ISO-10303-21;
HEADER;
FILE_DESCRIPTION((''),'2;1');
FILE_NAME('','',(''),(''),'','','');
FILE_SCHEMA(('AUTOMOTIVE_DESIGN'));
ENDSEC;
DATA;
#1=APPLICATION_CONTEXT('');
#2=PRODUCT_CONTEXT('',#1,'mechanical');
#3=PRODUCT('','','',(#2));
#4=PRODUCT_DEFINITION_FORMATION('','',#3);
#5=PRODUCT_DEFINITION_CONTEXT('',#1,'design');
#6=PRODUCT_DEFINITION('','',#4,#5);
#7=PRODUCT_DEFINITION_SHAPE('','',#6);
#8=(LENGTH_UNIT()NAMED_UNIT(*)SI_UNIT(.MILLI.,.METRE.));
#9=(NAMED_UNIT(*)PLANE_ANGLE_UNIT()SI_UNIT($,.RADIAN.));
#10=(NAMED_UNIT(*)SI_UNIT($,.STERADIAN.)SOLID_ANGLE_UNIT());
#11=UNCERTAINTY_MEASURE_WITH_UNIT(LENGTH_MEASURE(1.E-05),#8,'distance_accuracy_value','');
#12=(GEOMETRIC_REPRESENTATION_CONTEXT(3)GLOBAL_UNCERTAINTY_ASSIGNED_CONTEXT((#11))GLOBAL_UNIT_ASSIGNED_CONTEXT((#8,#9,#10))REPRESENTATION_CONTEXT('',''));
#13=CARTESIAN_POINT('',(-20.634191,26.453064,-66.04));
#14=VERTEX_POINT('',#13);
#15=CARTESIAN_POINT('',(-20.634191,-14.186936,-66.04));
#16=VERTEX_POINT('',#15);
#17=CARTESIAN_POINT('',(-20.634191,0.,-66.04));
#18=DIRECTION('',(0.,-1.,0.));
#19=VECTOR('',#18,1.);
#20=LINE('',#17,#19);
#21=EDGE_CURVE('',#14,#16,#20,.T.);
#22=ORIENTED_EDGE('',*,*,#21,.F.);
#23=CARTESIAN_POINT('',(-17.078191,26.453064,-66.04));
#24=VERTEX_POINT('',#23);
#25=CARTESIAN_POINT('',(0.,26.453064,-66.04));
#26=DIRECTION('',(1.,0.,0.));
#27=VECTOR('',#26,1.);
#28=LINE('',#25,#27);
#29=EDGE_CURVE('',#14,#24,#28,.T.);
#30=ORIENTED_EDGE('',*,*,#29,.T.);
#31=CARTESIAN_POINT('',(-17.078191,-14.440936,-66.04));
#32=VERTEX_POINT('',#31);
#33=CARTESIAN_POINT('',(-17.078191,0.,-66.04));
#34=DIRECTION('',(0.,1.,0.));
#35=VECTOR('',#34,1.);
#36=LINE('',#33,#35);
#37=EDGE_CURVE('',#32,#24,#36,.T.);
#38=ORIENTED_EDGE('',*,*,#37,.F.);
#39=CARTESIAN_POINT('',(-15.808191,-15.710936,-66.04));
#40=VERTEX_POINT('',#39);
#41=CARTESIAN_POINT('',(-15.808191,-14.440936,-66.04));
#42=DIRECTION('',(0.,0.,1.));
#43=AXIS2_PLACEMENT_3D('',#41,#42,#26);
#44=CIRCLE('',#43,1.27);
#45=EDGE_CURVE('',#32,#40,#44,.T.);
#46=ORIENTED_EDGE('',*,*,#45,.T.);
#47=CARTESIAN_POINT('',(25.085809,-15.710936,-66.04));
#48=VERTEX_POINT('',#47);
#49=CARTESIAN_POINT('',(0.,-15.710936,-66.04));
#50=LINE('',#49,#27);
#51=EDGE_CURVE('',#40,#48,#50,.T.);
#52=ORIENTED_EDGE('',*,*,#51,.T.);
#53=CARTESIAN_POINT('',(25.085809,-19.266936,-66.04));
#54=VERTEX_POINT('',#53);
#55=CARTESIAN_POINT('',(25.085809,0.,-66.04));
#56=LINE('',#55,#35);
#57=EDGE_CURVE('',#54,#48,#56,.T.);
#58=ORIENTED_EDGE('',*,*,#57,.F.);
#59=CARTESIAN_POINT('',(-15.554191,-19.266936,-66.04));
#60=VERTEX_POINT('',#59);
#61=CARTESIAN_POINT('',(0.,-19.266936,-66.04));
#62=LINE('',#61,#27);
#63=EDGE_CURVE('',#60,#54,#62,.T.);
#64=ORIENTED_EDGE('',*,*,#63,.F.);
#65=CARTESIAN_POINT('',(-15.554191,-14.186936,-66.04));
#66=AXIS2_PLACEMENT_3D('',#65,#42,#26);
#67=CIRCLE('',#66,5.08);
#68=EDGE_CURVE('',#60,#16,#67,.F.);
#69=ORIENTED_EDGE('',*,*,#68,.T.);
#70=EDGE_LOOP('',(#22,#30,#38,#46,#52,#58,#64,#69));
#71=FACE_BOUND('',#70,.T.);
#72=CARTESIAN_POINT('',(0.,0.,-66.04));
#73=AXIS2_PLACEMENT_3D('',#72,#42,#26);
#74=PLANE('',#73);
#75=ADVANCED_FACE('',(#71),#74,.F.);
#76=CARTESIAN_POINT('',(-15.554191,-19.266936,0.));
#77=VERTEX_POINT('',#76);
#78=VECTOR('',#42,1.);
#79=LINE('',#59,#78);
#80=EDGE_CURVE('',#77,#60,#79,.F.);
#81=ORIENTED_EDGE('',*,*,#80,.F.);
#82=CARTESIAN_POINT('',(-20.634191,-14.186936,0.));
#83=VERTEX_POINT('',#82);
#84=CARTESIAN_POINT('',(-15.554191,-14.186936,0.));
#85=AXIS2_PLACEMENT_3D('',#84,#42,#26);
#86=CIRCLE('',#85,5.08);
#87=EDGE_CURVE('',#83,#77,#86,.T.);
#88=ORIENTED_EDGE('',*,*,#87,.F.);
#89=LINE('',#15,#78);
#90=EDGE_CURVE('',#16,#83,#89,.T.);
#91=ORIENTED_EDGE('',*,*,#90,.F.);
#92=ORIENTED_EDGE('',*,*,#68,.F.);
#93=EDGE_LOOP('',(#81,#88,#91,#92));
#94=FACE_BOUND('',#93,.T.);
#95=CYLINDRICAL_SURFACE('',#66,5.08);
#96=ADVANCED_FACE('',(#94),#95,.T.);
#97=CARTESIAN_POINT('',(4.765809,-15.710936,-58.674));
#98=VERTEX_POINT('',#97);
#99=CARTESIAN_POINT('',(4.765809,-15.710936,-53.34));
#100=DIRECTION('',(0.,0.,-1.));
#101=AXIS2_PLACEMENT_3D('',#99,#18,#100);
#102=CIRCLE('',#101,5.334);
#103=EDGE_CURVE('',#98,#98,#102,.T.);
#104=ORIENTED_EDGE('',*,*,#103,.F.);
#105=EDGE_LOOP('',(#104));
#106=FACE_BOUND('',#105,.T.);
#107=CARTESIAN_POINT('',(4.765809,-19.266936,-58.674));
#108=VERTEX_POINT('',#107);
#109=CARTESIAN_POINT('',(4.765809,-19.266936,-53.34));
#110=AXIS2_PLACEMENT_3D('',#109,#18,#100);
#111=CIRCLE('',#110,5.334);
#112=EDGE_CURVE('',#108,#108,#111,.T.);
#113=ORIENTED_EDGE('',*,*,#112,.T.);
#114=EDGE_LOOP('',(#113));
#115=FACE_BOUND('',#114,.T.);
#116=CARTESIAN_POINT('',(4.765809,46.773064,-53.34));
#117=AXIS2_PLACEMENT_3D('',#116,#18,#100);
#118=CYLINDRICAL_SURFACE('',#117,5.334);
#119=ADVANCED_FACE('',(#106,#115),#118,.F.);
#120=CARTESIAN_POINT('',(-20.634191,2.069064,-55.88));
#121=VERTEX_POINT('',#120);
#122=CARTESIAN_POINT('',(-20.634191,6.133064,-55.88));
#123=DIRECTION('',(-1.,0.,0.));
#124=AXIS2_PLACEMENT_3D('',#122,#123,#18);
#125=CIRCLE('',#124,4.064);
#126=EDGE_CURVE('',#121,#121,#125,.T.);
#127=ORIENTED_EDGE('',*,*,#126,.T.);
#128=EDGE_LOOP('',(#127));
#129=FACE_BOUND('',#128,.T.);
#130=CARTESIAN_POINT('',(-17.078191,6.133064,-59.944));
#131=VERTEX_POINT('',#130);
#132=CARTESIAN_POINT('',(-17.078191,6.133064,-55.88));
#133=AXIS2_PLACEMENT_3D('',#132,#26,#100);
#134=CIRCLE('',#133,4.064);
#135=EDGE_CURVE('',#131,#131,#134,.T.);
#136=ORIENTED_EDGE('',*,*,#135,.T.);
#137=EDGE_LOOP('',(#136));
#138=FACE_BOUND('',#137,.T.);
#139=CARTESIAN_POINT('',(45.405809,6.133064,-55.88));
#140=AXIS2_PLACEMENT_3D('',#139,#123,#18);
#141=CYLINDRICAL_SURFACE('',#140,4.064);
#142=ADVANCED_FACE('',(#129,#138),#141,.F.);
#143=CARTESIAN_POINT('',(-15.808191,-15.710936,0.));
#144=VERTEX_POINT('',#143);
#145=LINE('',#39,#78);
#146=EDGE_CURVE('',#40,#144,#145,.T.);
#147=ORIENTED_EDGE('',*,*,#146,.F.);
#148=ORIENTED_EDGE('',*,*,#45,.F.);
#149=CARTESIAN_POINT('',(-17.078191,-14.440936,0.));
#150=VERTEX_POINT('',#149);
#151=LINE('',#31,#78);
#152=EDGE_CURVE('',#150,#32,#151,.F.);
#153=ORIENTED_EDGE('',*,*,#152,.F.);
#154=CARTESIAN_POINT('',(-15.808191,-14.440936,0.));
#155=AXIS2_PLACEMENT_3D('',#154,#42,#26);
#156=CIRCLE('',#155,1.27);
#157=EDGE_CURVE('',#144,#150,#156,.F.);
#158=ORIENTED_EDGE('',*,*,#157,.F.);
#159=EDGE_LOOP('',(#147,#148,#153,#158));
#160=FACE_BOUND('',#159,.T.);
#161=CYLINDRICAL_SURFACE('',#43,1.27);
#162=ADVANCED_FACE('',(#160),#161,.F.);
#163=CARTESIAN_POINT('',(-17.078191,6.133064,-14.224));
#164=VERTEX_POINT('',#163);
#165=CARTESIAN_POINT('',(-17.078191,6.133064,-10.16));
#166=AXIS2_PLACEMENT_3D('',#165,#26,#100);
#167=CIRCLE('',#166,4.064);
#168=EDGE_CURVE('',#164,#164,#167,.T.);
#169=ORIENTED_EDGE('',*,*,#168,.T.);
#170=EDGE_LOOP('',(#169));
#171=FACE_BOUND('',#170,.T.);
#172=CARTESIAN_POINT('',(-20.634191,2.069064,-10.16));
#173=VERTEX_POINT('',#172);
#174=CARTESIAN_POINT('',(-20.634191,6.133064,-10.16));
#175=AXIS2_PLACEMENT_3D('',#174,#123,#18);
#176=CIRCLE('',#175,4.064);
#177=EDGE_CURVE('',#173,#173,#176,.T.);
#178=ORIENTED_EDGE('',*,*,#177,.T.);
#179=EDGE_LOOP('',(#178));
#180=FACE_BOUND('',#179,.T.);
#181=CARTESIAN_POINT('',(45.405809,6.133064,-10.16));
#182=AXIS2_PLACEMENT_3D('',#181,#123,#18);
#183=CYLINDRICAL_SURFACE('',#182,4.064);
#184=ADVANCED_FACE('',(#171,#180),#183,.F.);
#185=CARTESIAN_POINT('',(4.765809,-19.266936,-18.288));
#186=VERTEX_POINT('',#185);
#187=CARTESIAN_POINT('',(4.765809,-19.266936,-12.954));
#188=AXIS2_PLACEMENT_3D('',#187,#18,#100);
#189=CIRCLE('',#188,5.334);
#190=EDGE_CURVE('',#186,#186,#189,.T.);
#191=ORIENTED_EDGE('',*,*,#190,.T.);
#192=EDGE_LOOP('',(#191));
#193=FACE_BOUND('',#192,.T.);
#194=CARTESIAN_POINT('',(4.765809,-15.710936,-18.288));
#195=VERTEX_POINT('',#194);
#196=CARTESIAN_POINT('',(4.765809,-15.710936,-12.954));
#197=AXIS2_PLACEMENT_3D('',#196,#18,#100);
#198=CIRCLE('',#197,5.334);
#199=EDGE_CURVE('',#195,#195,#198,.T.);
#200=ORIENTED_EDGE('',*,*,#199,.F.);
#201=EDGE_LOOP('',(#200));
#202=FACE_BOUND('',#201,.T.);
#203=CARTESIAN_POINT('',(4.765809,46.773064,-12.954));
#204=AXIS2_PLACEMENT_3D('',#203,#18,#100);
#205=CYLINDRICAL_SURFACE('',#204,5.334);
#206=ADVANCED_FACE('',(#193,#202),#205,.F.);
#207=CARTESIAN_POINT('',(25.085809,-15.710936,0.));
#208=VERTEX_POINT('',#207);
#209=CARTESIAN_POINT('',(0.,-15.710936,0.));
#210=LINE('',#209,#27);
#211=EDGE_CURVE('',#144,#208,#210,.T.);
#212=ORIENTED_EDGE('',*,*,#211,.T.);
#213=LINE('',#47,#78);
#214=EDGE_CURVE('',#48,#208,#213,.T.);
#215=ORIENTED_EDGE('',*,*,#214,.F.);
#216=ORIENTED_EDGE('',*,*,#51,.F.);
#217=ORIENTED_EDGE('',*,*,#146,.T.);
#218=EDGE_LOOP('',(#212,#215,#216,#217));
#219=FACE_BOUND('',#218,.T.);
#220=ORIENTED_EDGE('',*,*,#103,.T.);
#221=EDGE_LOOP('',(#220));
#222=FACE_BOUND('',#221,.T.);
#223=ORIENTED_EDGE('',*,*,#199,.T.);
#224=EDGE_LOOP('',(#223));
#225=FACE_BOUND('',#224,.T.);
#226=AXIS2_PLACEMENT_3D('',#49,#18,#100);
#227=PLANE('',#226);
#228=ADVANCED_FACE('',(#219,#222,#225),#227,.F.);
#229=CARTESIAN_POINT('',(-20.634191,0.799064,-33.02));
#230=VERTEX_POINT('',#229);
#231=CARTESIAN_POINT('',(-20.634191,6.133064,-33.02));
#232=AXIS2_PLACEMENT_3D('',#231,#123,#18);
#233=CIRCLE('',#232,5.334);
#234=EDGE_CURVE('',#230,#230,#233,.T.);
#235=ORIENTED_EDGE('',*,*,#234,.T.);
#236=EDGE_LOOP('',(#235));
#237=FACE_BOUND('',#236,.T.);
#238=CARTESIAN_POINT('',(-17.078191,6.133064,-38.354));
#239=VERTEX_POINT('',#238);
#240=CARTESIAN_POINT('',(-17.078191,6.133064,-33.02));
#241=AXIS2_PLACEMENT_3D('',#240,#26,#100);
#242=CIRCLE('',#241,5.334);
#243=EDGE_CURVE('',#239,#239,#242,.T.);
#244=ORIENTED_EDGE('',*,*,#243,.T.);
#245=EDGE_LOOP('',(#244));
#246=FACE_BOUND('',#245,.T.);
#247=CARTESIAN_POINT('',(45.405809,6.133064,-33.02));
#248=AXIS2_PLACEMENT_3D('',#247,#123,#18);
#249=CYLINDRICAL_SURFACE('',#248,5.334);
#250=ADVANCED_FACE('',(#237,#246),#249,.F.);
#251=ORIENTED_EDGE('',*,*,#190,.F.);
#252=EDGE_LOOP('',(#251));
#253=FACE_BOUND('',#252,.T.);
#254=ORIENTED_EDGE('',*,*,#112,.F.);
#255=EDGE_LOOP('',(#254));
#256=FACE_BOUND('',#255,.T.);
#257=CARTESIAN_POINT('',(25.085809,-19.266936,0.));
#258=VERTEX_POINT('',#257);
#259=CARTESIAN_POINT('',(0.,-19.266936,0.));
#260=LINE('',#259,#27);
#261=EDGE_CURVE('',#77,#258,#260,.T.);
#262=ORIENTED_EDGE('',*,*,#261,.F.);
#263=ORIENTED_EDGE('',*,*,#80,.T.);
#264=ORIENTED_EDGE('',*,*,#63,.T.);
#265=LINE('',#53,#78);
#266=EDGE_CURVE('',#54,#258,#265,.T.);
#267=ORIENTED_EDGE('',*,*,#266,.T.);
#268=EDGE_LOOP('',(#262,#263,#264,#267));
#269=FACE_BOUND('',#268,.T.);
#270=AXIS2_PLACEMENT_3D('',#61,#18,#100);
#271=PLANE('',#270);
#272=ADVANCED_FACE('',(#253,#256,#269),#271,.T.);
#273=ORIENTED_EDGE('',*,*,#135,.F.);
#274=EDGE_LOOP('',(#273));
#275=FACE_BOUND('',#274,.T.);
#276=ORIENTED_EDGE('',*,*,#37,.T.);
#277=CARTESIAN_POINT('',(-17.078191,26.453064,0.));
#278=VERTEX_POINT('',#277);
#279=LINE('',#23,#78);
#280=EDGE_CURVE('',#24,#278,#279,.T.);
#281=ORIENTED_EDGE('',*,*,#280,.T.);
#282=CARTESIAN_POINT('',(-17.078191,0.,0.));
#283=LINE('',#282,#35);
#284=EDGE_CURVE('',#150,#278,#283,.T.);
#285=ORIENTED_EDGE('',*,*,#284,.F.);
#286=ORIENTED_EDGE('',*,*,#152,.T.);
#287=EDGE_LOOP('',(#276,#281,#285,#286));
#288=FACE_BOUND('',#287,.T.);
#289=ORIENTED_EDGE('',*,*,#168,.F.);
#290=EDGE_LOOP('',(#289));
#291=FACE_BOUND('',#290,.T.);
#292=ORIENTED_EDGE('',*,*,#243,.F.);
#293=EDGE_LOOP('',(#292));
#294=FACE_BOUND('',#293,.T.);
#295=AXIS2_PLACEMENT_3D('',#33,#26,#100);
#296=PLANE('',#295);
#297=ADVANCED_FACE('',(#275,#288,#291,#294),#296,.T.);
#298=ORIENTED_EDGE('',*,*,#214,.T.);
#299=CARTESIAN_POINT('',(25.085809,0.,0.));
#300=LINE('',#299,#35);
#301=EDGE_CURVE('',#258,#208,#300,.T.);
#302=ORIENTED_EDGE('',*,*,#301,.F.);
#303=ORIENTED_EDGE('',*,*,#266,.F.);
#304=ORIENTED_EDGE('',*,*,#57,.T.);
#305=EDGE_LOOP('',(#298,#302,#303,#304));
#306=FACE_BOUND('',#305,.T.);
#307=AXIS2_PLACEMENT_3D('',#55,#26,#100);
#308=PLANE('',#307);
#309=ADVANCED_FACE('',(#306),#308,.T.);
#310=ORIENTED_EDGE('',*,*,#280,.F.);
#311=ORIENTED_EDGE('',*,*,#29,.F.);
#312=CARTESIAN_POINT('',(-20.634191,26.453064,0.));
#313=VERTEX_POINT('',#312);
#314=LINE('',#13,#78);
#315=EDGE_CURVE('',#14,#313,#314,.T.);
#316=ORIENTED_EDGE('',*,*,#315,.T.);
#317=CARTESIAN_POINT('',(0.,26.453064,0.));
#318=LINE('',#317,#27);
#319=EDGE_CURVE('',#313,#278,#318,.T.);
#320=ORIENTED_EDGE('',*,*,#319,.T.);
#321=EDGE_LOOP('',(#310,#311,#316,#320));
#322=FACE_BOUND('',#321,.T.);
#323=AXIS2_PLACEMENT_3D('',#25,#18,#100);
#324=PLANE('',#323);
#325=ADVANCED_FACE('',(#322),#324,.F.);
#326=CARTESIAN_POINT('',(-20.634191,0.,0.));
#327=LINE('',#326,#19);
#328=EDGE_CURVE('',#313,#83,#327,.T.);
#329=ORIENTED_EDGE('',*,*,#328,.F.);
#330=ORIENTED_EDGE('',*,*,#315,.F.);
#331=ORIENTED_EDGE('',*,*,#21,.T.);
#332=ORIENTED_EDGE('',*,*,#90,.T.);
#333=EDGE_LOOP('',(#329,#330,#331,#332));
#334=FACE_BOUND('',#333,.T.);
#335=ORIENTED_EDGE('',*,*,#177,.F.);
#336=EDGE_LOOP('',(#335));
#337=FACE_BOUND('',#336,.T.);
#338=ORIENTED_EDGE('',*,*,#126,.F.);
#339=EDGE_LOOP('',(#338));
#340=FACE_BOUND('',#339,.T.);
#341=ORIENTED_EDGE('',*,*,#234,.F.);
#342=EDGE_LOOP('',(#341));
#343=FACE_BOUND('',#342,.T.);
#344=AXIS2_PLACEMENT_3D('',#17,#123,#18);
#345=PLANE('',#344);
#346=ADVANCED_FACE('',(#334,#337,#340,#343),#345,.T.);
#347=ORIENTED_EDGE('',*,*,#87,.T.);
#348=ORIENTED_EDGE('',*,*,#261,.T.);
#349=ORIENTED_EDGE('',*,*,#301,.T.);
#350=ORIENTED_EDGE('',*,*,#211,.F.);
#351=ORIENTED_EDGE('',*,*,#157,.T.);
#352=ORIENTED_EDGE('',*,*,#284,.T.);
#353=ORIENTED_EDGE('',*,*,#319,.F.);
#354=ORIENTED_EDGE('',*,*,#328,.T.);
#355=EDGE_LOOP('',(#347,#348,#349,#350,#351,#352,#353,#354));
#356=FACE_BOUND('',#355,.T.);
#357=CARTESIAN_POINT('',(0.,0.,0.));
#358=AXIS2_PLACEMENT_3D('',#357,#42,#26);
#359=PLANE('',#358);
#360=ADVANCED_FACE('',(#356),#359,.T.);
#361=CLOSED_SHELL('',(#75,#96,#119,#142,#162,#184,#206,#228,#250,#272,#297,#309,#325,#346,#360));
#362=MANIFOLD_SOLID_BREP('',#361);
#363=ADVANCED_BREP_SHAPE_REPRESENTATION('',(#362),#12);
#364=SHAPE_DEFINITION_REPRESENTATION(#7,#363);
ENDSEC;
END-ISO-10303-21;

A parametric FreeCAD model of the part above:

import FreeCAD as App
import Part
import Sketcher
from FreeCAD import Vector
Q = App.Units.Quantity


def edges_at(feature, points):
    """Names of the edges that pass closest to the given points."""
    edges = feature.Shape.Edges
    near = lambda p: min(range(len(edges)), key=lambda i: edges[i].distToShape(Part.Vertex(*p))[0])
    return sorted({f"Edge{near(p) + 1}" for p in points})


def add_polygon(sketch, points):
    """Adds a closed chain of lines whose ends are joined by coincident constraints."""
    first, n = sketch.GeometryCount, len(points)
    for a, b in zip(points, points[1:] + points[:1]):
        sketch.addGeometry(Part.LineSegment(App.Vector(*a, 0), App.Vector(*b, 0)), False)
    for i in range(n):
        sketch.addConstraint(Sketcher.Constraint("Coincident", first + i, 2, first + (i + 1) % n, 1))

doc = App.newDocument("Part")
body = doc.addObject("PartDesign::Body", "Body")

# Sketch on XY plane
sketch1 = doc.addObject("Sketcher::SketchObject", "Sketch")
body.addObject(sketch1)
sketch1.AttachmentSupport = (doc.XY_Plane, [""])
sketch1.MapMode = "FlatFace"
add_polygon(sketch1, [(-20.6, 26.5), (-20.6, -19.3), (25.1, -19.3), (25.1, -15.7), (-17.1, -15.7), (-17.1, 26.5)])  # lines 0-5
sketch1.addConstraint(Sketcher.Constraint("Vertical", 0))
sketch1.addConstraint(Sketcher.Constraint("Horizontal", 1))
sketch1.addConstraint(Sketcher.Constraint("Vertical", 2))
sketch1.addConstraint(Sketcher.Constraint("Horizontal", 3))
sketch1.addConstraint(Sketcher.Constraint("Vertical", 4))
sketch1.addConstraint(Sketcher.Constraint("Horizontal", 5))
sketch1.addConstraint(Sketcher.Constraint("Equal", 1, 0))
sketch1.addConstraint(Sketcher.Constraint("Equal", 5, 2))
sketch1.addConstraint(Sketcher.Constraint("DistanceX", 1, 1, 1, 2, Q("1.8 in")))
sketch1.addConstraint(Sketcher.Constraint("DistanceX", 3, 2, 3, 1, Q("1.66 in")))
sketch1.addConstraint(Sketcher.Constraint("DistanceX", 0, 2, -1, 1, 20.634191))
sketch1.addConstraint(Sketcher.Constraint("DistanceY", 0, 2, -1, 1, 19.266936))
pad1 = doc.addObject("PartDesign::Pad", "Pad")
body.addObject(pad1)
pad1.Profile = sketch1
pad1.Length = Q("2.6 in")
pad1.Reversed = True
doc.recompute()

fillet = doc.addObject("PartDesign::Fillet", "Fillet")
body.addObject(fillet)
fillet.Base = (pad1, edges_at(pad1, [(-17.078, -15.711, -33.02)]))
fillet.Radius = Q("0.05 in")
doc.recompute()

fillet2 = doc.addObject("PartDesign::Fillet", "Fillet001")
body.addObject(fillet2)
fillet2.Base = (fillet, edges_at(fillet, [(-20.634, -19.267, -33.02)]))
fillet2.Radius = Q("0.2 in")

# Sketch on YZ plane
sketch2 = doc.addObject("Sketcher::SketchObject", "Sketch001")
body.addObject(sketch2)
sketch2.AttachmentSupport = (doc.YZ_Plane, [""])
sketch2.MapMode = "FlatFace"
sketch2.AttachmentOffset = App.Placement(Vector(0, 0, -20.634191), App.Rotation())
sketch2.addGeometry(Part.Circle(Vector(6.1, -33, 0), Vector(0, 0, 1), 5.3), False)
sketch2.addGeometry(Part.Circle(Vector(6.1, -55.9, 0), Vector(0, 0, 1), 4.1), False)
sketch2.addGeometry(Part.Circle(Vector(6.1, -10.2, 0), Vector(0, 0, 1), 4.1), False)
sketch2.addConstraint(Sketcher.Constraint("Equal", 1, 2))
sketch2.addConstraint(Sketcher.Constraint("Vertical", 0, 3, 1, 3))
sketch2.addConstraint(Sketcher.Constraint("Vertical", 1, 3, 2, 3))
sketch2.addConstraint(Sketcher.Constraint("Diameter", 0, Q("0.42 in")))
sketch2.addConstraint(Sketcher.Constraint("Diameter", 1, Q("0.32 in")))
sketch2.addConstraint(Sketcher.Constraint("DistanceY", 0, 3, -1, 1, Q("1.3 in")))
sketch2.addConstraint(Sketcher.Constraint("DistanceY", 1, 3, -1, 1, Q("2.2 in")))
sketch2.addConstraint(Sketcher.Constraint("DistanceY", 2, 3, -1, 1, Q("0.4 in")))
sketch2.addConstraint(Sketcher.Constraint("DistanceX", -1, 1, 0, 3, 6.133064))
pocket1 = doc.addObject("PartDesign::Pocket", "Pocket")
body.addObject(pocket1)
pocket1.Profile = sketch2
pocket1.Length = Q("2.6 in")
pocket1.Reversed = True

# Sketch on XZ plane
sketch3 = doc.addObject("Sketcher::SketchObject", "Sketch002")
body.addObject(sketch3)
sketch3.AttachmentSupport = (doc.XZ_Plane, [""])
sketch3.MapMode = "FlatFace"
sketch3.AttachmentOffset = App.Placement(Vector(0, 0, 19.266936), App.Rotation())
sketch3.addGeometry(Part.Circle(Vector(5, -13, 0), Vector(0, 0, 1), 5), False)
sketch3.addGeometry(Part.Circle(Vector(5, -53, 0), Vector(0, 0, 1), 5), False)
sketch3.addConstraint(Sketcher.Constraint("Equal", 0, 1))
sketch3.addConstraint(Sketcher.Constraint("Vertical", 0, 3, 1, 3))
sketch3.addConstraint(Sketcher.Constraint("Diameter", 0, Q("0.42 in")))
sketch3.addConstraint(Sketcher.Constraint("DistanceY", 1, 3, -1, 1, Q("2.1 in")))
sketch3.addConstraint(Sketcher.Constraint("DistanceY", 0, 3, -1, 1, Q("0.51 in")))
sketch3.addConstraint(Sketcher.Constraint("DistanceX", -1, 1, 0, 3, 4.765809))
pocket2 = doc.addObject("PartDesign::Pocket", "Pocket001")
body.addObject(pocket2)
pocket2.Profile = sketch3
pocket2.Length = Q("2.6 in")

doc.recompute()
